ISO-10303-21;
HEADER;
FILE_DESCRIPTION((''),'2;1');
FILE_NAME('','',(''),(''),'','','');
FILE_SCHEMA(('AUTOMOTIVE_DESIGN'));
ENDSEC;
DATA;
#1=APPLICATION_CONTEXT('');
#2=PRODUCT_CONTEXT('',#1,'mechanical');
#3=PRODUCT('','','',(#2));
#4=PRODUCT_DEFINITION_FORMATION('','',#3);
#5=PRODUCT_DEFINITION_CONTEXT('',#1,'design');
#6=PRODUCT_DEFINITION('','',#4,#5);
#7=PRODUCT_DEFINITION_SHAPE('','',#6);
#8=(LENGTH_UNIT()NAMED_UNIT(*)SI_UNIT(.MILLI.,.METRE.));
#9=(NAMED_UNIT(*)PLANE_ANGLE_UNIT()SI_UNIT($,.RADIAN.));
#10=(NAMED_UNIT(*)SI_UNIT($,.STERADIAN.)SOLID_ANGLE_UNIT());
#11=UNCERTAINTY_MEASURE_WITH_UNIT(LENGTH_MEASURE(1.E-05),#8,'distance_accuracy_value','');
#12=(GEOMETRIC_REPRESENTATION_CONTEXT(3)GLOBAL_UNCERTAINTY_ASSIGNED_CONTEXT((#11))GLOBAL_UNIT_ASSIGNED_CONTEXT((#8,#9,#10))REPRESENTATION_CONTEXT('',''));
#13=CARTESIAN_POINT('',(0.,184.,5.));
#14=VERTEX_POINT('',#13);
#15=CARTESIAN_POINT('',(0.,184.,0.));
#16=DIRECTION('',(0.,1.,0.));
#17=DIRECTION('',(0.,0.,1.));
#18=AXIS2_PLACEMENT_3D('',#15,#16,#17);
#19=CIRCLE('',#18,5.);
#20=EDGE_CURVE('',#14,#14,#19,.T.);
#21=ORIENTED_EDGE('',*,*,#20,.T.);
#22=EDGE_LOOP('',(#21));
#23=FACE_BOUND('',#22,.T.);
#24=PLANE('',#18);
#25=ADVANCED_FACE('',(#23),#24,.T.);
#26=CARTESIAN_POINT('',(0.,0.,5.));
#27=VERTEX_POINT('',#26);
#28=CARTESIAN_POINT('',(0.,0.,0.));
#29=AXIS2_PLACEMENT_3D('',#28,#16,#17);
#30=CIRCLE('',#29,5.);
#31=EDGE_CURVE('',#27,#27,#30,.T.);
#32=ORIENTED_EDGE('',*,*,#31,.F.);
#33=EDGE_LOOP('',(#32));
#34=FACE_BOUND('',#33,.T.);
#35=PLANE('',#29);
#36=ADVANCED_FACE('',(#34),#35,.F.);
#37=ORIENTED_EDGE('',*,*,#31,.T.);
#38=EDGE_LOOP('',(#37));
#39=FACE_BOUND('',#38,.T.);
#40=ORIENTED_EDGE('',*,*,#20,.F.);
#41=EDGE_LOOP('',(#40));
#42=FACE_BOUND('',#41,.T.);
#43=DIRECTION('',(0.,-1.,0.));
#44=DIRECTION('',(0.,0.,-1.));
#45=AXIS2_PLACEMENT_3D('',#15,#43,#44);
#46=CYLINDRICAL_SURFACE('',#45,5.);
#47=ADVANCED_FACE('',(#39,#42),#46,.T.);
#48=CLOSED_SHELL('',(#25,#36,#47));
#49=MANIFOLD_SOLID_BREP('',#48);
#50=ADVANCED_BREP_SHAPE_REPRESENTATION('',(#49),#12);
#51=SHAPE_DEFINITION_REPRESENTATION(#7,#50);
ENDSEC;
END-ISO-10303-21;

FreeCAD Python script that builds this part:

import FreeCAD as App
import Part
import Sketcher
from FreeCAD import Vector
Q = App.Units.Quantity

doc = App.newDocument("Part")
body = doc.addObject("PartDesign::Body", "Body")

# Sketch on XZ plane
sketch1 = body.newObject("Sketcher::SketchObject", "Sketch")
sketch1.AttachmentSupport = (doc.getObject("XZ_Plane"), [""])
sketch1.MapMode = "FlatFace"
sketch1.addGeometry(Part.Circle(Vector(0, 0, 0), Vector(0, 0, 1), 5), False)
sketch1.addConstraint(Sketcher.Constraint("Coincident", 0, 3, -1, 1))
sketch1.addConstraint(Sketcher.Constraint("Diameter", 0, Q("10 mm")))
pad1 = body.newObject("PartDesign::Pad", "Pad")
pad1.Profile = sketch1
pad1.Length = 184
pad1.Reversed = True

doc.recompute()
